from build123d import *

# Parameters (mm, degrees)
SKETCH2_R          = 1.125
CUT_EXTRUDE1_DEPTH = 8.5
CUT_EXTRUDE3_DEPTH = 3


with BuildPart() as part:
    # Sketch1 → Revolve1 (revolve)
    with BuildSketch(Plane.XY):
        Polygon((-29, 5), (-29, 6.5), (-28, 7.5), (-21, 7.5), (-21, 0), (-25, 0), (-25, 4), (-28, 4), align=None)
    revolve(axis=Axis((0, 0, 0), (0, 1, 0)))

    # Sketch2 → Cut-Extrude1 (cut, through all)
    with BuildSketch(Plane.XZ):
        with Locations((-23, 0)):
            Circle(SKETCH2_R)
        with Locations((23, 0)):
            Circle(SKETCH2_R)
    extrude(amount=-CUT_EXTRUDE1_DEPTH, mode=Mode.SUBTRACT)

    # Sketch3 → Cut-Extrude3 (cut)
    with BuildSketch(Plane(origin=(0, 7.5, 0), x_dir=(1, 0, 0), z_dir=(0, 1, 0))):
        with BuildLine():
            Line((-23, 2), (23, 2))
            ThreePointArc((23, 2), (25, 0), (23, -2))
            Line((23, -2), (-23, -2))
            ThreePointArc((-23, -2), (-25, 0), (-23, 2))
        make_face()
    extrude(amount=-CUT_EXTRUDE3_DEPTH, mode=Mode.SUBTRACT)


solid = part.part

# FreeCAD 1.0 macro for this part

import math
import FreeCAD as App
import Part
import Sketcher

doc = App.newDocument("Part")
body = doc.addObject("PartDesign::Body", "Body")

sketch1 = doc.addObject("Sketcher::SketchObject", "Sketch")
body.addObject(sketch1)
sketch1.AttachmentSupport = (doc.XY_Plane, [""])
sketch1.MapMode = "FlatFace"
sketch1.addGeometry(Part.LineSegment(App.Vector(-29, 6.5, 0), App.Vector(-29, 5, 0)), False)
sketch1.addGeometry(Part.LineSegment(App.Vector(-29, 5, 0), App.Vector(-28, 4, 0)), False)
sketch1.addGeometry(Part.LineSegment(App.Vector(-28, 4, 0), App.Vector(-25, 4, 0)), False)
sketch1.addGeometry(Part.LineSegment(App.Vector(-25, 4, 0), App.Vector(-25, 0, 0)), False)
sketch1.addGeometry(Part.LineSegment(App.Vector(-25, 0, 0), App.Vector(-21, 0, 0)), False)
sketch1.addGeometry(Part.LineSegment(App.Vector(-21, 0, 0), App.Vector(-21, 7.5, 0)), False)
sketch1.addGeometry(Part.LineSegment(App.Vector(-21, 7.5, 0), App.Vector(-28, 7.5, 0)), False)
sketch1.addGeometry(Part.LineSegment(App.Vector(-28, 7.5, 0), App.Vector(-29, 6.5, 0)), False)
sketch1.addConstraint(Sketcher.Constraint("Coincident", 0, 2, 1, 1))
sketch1.addConstraint(Sketcher.Constraint("Coincident", 1, 2, 2, 1))
sketch1.addConstraint(Sketcher.Constraint("Coincident", 2, 2, 3, 1))
sketch1.addConstraint(Sketcher.Constraint("Coincident", 3, 2, 4, 1))
sketch1.addConstraint(Sketcher.Constraint("Coincident", 4, 2, 5, 1))
sketch1.addConstraint(Sketcher.Constraint("Coincident", 5, 2, 6, 1))
sketch1.addConstraint(Sketcher.Constraint("Coincident", 6, 2, 7, 1))
sketch1.addConstraint(Sketcher.Constraint("Coincident", 7, 2, 0, 1))
sketch1.addConstraint(Sketcher.Constraint("Vertical", 0))
sketch1.addConstraint(Sketcher.Constraint("Horizontal", 2))
sketch1.addConstraint(Sketcher.Constraint("Vertical", 3))
sketch1.addConstraint(Sketcher.Constraint("Horizontal", 4))
sketch1.addConstraint(Sketcher.Constraint("Vertical", 5))
sketch1.addConstraint(Sketcher.Constraint("Horizontal", 6))
sketch1.addConstraint(Sketcher.Constraint("PointOnObject", 3, 2, -1))
sketch1.addConstraint(Sketcher.Constraint("Perpendicular", 1, 7))
sketch1.addConstraint(Sketcher.Constraint("Vertical", 1, 2, 6, 2))
sketch1.addConstraint(Sketcher.Constraint("Equal", 4, 3))
sketch1.addConstraint(Sketcher.Constraint("Equal", 1, 7))
sketch1.addConstraint(Sketcher.Constraint("DistanceX", 2, 1, 2, 2, 3.0))
sketch1.addConstraint(Sketcher.Constraint("DistanceX", 4, 1, 4, 2, 4.0))
sketch1.addConstraint(Sketcher.Constraint("DistanceY", 0, 2, 0, 1, 1.5))
sketch1.addConstraint(Sketcher.Constraint("DistanceY", 5, 1, 5, 2, 7.5))
sketch1.addConstraint(Sketcher.Constraint("DistanceX", 0, 2, -1, 1, 29.0))
revolution = doc.addObject("PartDesign::Revolution", "Revolution")
body.addObject(revolution)
revolution.Profile = sketch1
revolution.ReferenceAxis = (sketch1, ["V_Axis"])
revolution.Angle = 360

sketch2 = doc.addObject("Sketcher::SketchObject", "Sketch001")
body.addObject(sketch2)
sketch2.AttachmentSupport = (doc.XZ_Plane, [""])
sketch2.MapMode = "FlatFace"
sketch2.addGeometry(Part.Circle(App.Vector(-23, 0, 0), App.Vector(0, 0, 1), 1.1), False)
sketch2.addGeometry(Part.Circle(App.Vector(23, 0, 0), App.Vector(0, 0, 1), 1.1), False)
sketch2.addConstraint(Sketcher.Constraint("Equal", 0, 1))
sketch2.addConstraint(Sketcher.Constraint("Symmetric", 0, 3, 1, 3, -1, 1))
sketch2.addConstraint(Sketcher.Constraint("PointOnObject", 0, 3, -1))
sketch2.addConstraint(Sketcher.Constraint("Diameter", 0, 2.25))
sketch2.addConstraint(Sketcher.Constraint("DistanceX", 0, 3, -1, 1, 23.0))
pocket1 = doc.addObject("PartDesign::Pocket", "Pocket")
body.addObject(pocket1)
pocket1.Profile = sketch2
pocket1.Type = "ThroughAll"

sketch3 = doc.addObject("Sketcher::SketchObject", "Sketch002")
body.addObject(sketch3)
sketch3.AttachmentSupport = (doc.XZ_Plane, [""])
sketch3.MapMode = "FlatFace"
sketch3.AttachmentOffset = App.Placement(App.Vector(0, 0, -7.5), App.Rotation())
sketch3.addGeometry(Part.LineSegment(App.Vector(23, -2, 0), App.Vector(-23, -2, 0)), False)
sketch3.addGeometry(Part.ArcOfCircle(Part.Circle(App.Vector(-23, 0, 0), App.Vector(0, 0, 1), 2), math.radians(90), math.radians(270)), False)
sketch3.addGeometry(Part.LineSegment(App.Vector(-23, 2, 0), App.Vector(23, 2, 0)), False)
sketch3.addGeometry(Part.ArcOfCircle(Part.Circle(App.Vector(23, 0, 0), App.Vector(0, 0, 1), 2), math.radians(-90), math.radians(90)), False)
sketch3.addConstraint(Sketcher.Constraint("Tangent", 0, 2, 1, 2))
sketch3.addConstraint(Sketcher.Constraint("Tangent", 1, 1, 2, 1))
sketch3.addConstraint(Sketcher.Constraint("Tangent", 2, 2, 3, 2))
sketch3.addConstraint(Sketcher.Constraint("Tangent", 3, 1, 0, 1))
sketch3.addConstraint(Sketcher.Constraint("Horizontal", 0))
sketch3.addConstraint(Sketcher.Constraint("Horizontal", 2))
sketch3.addConstraint(Sketcher.Constraint("Symmetric", 1, 3, 3, 3, -1, 1))
sketch3.addConstraint(Sketcher.Constraint("Radius", 1, 2.0))
sketch3.addConstraint(Sketcher.Constraint("DistanceX", 0, 2, 0, 1, 46.0))
pocket2 = doc.addObject("PartDesign::Pocket", "Pocket001")
body.addObject(pocket2)
pocket2.Profile = sketch3
pocket2.Length = 3
pocket2.Reversed = True

doc.recompute()
